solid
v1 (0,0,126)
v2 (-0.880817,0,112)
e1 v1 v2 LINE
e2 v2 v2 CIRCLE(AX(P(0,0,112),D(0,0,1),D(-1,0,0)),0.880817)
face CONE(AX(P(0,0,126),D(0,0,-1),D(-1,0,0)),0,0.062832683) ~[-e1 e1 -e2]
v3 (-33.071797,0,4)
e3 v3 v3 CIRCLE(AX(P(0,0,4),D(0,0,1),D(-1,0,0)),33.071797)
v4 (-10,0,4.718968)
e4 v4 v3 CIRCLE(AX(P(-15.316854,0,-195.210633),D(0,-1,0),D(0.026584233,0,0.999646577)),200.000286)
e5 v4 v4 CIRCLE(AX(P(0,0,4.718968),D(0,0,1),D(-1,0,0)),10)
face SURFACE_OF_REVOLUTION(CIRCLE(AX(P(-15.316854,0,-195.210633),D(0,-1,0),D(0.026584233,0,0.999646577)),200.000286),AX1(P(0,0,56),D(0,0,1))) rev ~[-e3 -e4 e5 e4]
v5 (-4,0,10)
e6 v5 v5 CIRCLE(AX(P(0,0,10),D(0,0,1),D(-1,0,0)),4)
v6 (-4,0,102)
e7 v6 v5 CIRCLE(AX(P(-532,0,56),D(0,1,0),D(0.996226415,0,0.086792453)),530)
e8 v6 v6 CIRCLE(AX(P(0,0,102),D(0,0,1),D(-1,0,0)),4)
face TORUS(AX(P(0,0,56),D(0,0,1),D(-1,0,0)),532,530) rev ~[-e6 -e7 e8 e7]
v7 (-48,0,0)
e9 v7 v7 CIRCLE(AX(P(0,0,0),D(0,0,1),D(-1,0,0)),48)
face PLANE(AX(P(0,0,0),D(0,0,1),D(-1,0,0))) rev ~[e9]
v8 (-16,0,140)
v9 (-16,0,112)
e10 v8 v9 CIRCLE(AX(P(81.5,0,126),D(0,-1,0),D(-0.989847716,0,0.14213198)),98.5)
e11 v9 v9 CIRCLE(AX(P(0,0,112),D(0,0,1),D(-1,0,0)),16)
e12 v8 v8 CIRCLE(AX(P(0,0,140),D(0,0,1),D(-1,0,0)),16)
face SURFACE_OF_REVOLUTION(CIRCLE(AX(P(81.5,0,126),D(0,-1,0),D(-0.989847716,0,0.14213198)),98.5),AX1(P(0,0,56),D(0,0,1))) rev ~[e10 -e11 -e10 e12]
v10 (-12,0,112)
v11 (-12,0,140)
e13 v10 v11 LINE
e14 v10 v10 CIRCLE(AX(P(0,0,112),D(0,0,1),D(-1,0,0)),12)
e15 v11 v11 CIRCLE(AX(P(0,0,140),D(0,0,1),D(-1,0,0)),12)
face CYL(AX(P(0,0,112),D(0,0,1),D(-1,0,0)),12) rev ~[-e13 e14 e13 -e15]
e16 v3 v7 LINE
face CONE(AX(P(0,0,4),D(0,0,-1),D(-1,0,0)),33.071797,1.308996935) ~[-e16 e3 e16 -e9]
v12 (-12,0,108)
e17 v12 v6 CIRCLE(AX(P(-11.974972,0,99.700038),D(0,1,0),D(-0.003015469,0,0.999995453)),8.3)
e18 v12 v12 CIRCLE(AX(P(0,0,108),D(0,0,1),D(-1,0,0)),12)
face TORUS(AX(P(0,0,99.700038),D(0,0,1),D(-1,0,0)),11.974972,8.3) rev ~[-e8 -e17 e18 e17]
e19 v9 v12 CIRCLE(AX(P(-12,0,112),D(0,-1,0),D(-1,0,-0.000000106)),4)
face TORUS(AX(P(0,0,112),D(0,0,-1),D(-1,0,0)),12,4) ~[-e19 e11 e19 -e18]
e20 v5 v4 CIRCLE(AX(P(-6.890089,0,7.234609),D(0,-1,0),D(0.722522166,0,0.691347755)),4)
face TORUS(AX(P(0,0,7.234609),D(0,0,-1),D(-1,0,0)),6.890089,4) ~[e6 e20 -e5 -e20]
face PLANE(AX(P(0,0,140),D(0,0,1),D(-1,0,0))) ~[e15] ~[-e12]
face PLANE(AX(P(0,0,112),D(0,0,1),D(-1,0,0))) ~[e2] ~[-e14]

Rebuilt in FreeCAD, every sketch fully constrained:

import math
import FreeCAD as App
import Part
import Sketcher
from FreeCAD import Vector
Q = App.Units.Quantity

doc = App.newDocument("Part")
body = doc.addObject("PartDesign::Body", "Body")

# Sketch on XZ plane
sketch1 = doc.addObject("Sketcher::SketchObject", "Sketch")
body.addObject(sketch1)
sketch1.AttachmentSupport = (doc.XZ_Plane, [""])
sketch1.MapMode = "FlatFace"
sketch1.addGeometry(Part.LineSegment(Vector(-48, 0, 0), Vector(0, 0, 0)), False)
sketch1.addGeometry(Part.LineSegment(Vector(0, 0, 0), Vector(0, 126, 0)), False)
sketch1.addGeometry(Part.LineSegment(Vector(0, 126, 0), Vector(-0.880817, 112, 0)), False)
sketch1.addGeometry(Part.LineSegment(Vector(-0.880817, 112, 0), Vector(-12, 112, 0)), False)
sketch1.addGeometry(Part.LineSegment(Vector(-12, 112, 0), Vector(-12, 140, 0)), False)
sketch1.addGeometry(Part.LineSegment(Vector(-12, 140, 0), Vector(-16, 140, 0)), False)
sketch1.addGeometry(Part.ArcOfCircle(Part.Circle(Vector(81.5, 126, 0), Vector(0, 0, 1), 98.5), math.radians(171.828766), math.radians(188.171234)), False)
sketch1.addGeometry(Part.ArcOfCircle(Part.Circle(Vector(-12, 112, 0), Vector(0, 0, 1), 4), math.radians(-179.999994), math.radians(-90.000006)), False)
sketch1.addGeometry(Part.ArcOfCircle(Part.Circle(Vector(-11.974972, 99.700038, 0), Vector(0, 0, 1), 8.3), math.radians(16.087431), math.radians(90.172774)), False)
sketch1.addGeometry(Part.ArcOfCircle(Part.Circle(Vector(-532, 56, 0), Vector(0, 0, 1), 530), math.radians(-4.979106), math.radians(4.979106)), False)
sketch1.addGeometry(Part.ArcOfCircle(Part.Circle(Vector(-6.890089, 7.234609, 0), Vector(0, 0, 1), 4), math.radians(43.73689), math.radians(218.969771)), False)
sketch1.addGeometry(Part.ArcOfCircle(Part.Circle(Vector(-15.316854, -195.210633, 0), Vector(0, 0, 1), 200.000286), math.radians(88.476656), math.radians(95.093114)), False)
sketch1.addGeometry(Part.LineSegment(Vector(-33.071797, 4, 0), Vector(-48, 0, 0)), False)
sketch1.addConstraint(Sketcher.Constraint("Coincident", 0, 2, 1, 1))
sketch1.addConstraint(Sketcher.Constraint("Coincident", 1, 2, 2, 1))
sketch1.addConstraint(Sketcher.Constraint("Coincident", 2, 2, 3, 1))
sketch1.addConstraint(Sketcher.Constraint("Coincident", 3, 2, 4, 1))
sketch1.addConstraint(Sketcher.Constraint("Coincident", 4, 2, 5, 1))
sketch1.addConstraint(Sketcher.Constraint("Coincident", 5, 2, 6, 1))
sketch1.addConstraint(Sketcher.Constraint("Coincident", 6, 2, 7, 1))
sketch1.addConstraint(Sketcher.Constraint("Coincident", 7, 2, 8, 2))
sketch1.addConstraint(Sketcher.Constraint("Coincident", 8, 1, 9, 2))
sketch1.addConstraint(Sketcher.Constraint("Coincident", 9, 1, 10, 1))
sketch1.addConstraint(Sketcher.Constraint("Coincident", 10, 2, 11, 1))
sketch1.addConstraint(Sketcher.Constraint("Coincident", 11, 2, 12, 1))
sketch1.addConstraint(Sketcher.Constraint("Coincident", 12, 2, 0, 1))
sketch1.addConstraint(Sketcher.Constraint("Horizontal", 0))
sketch1.addConstraint(Sketcher.Constraint("Vertical", 1))
sketch1.addConstraint(Sketcher.Constraint("Horizontal", 3))
sketch1.addConstraint(Sketcher.Constraint("Vertical", 4))
sketch1.addConstraint(Sketcher.Constraint("Horizontal", 5))
sketch1.addConstraint(Sketcher.Constraint("Coincident", 0, 2, -1, 1))
sketch1.addConstraint(Sketcher.Constraint("Coincident", 3, 2, 7, 3))
sketch1.addConstraint(Sketcher.Constraint("Equal", 7, 10))
sketch1.addConstraint(Sketcher.Constraint("Horizontal", 6, 3, 1, 2))
sketch1.addConstraint(Sketcher.Constraint("Horizontal", 3, 2, 6, 2))
sketch1.addConstraint(Sketcher.Constraint("Vertical", 5, 2, 6, 2))
sketch1.addConstraint(Sketcher.Constraint("Vertical", 4, 2, 7, 2))
sketch1.addConstraint(Sketcher.Constraint("Vertical", 8, 1, 9, 1))
sketch1.addConstraint(Sketcher.Constraint("Radius", 7, Q("4 mm")))
sketch1.addConstraint(Sketcher.Constraint("Radius", 9, Q("530 mm")))
sketch1.addConstraint(Sketcher.Constraint("Radius", 6, Q("98.5 mm")))
sketch1.addConstraint(Sketcher.Constraint("Radius", 8, Q("8.3 mm")))
sketch1.addConstraint(Sketcher.Constraint("DistanceX", 0, 1, 0, 2, Q("48 mm")))
sketch1.addConstraint(Sketcher.Constraint("DistanceY", 1, 1, 1, 2, Q("126 mm")))
sketch1.addConstraint(Sketcher.Constraint("DistanceY", 4, 1, 4, 2, Q("28 mm")))
sketch1.addConstraint(Sketcher.Constraint("Angle", 12, Q("-165 deg")))
sketch1.addConstraint(Sketcher.Constraint("DistanceX", 7, 3, -1, 1, Q("12 mm")))
sketch1.addConstraint(Sketcher.Constraint("DistanceX", 9, 3, -1, 1, Q("532 mm")))
sketch1.addConstraint(Sketcher.Constraint("DistanceY", -1, 1, 9, 3, Q("56 mm")))
sketch1.addConstraint(Sketcher.Constraint("DistanceX", 8, 1, -1, 1, Q("4 mm")))
sketch1.addConstraint(Sketcher.Constraint("DistanceX", 10, 2, -1, 1, Q("10 mm")))
sketch1.addConstraint(Sketcher.Constraint("DistanceY", -1, 1, 11, 2, Q("4 mm")))
sketch1.addConstraint(Sketcher.Constraint("Radius", 11, Q("200.000286 mm")))
sketch1.addConstraint(Sketcher.Constraint("Distance", 2, Q("14.027681 mm")))
sketch1.addConstraint(Sketcher.Constraint("DistanceX", 10, 3, -1, 1, Q("6.890089 mm")))
revolution = doc.addObject("PartDesign::Revolution", "Revolution")
body.addObject(revolution)
revolution.Profile = sketch1
revolution.ReferenceAxis = (sketch1, ["V_Axis"])
revolution.Angle = 360

doc.recompute()
